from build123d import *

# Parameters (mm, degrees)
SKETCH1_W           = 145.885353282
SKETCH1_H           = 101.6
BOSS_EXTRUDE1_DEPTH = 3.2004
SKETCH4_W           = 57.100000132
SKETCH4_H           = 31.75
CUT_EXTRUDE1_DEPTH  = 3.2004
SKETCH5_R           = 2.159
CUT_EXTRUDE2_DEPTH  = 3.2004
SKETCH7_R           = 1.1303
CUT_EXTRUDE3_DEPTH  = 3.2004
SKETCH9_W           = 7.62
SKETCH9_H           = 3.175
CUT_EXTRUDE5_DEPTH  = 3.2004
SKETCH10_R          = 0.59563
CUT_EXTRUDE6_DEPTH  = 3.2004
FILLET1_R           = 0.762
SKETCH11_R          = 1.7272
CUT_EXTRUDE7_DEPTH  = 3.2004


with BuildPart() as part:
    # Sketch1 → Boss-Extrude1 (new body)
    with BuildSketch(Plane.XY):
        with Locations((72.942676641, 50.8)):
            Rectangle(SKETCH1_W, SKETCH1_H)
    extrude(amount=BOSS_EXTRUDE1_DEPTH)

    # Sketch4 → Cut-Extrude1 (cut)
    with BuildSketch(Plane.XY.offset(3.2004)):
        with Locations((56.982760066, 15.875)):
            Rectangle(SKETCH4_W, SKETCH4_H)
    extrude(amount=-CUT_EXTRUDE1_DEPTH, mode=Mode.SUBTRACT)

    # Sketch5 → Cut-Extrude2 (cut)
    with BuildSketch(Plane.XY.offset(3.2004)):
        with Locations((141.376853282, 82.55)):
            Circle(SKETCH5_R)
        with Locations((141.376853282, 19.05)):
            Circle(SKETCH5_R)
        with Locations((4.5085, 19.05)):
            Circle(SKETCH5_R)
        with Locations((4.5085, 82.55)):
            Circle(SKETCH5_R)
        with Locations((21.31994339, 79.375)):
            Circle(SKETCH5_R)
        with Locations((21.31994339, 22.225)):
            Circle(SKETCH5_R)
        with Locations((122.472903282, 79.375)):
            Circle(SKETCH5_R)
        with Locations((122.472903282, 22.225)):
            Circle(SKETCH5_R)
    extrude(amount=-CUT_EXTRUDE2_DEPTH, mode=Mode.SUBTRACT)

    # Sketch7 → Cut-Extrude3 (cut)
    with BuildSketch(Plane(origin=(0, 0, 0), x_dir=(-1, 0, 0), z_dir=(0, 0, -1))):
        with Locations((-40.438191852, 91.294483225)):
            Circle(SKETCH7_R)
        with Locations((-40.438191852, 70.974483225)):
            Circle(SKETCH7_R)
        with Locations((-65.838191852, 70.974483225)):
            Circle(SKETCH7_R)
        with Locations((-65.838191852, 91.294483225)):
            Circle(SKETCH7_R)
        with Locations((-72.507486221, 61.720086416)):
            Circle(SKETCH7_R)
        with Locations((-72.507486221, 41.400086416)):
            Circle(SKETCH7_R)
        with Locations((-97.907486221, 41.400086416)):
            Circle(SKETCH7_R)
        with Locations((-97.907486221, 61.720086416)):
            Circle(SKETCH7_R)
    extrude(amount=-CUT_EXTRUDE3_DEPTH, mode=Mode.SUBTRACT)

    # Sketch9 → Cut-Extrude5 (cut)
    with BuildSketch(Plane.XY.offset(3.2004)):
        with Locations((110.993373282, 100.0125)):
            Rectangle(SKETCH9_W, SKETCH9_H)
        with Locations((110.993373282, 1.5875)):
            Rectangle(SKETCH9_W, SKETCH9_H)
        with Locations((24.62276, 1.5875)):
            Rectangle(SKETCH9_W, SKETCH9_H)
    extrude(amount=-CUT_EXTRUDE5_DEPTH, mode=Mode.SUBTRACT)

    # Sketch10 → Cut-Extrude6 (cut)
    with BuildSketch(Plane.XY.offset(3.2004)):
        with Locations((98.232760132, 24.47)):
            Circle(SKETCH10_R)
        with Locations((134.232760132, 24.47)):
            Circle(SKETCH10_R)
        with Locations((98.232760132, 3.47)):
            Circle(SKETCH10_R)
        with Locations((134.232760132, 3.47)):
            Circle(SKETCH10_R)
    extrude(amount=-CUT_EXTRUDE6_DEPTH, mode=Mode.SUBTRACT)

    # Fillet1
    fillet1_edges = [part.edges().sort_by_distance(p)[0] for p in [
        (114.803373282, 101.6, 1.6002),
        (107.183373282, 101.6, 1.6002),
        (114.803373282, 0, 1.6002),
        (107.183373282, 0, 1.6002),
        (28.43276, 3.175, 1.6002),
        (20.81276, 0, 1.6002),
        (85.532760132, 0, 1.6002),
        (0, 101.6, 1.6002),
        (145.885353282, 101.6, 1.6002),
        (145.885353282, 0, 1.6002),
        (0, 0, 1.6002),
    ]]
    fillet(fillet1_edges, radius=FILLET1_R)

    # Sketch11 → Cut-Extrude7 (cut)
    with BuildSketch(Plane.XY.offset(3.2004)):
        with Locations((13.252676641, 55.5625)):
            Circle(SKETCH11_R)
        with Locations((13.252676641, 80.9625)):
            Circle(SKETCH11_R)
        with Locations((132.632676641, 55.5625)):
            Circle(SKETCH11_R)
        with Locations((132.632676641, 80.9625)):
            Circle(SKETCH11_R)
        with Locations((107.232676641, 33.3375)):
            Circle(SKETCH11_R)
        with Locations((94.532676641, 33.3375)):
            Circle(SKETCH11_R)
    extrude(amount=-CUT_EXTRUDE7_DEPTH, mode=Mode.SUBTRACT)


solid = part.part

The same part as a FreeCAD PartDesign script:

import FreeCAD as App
import Part
import Sketcher
Q = App.Units.Quantity


def edges_at(feature, points):
    """Names of the edges that pass closest to the given points."""
    edges = feature.Shape.Edges
    near = lambda p: min(range(len(edges)), key=lambda i: edges[i].distToShape(Part.Vertex(*p))[0])
    return sorted({f"Edge{near(p) + 1}" for p in points})

doc = App.newDocument("Part")
body = doc.addObject("PartDesign::Body", "Body")

sketch1 = doc.addObject("Sketcher::SketchObject", "Sketch")
body.addObject(sketch1)
sketch1.AttachmentSupport = (doc.XY_Plane, [""])
sketch1.MapMode = "FlatFace"
sketch1.addGeometry(Part.LineSegment(App.Vector(0, 102, 0), App.Vector(0, 0, 0)), False)
sketch1.addGeometry(Part.LineSegment(App.Vector(0, 0, 0), App.Vector(146, 0, 0)), False)
sketch1.addGeometry(Part.LineSegment(App.Vector(146, 0, 0), App.Vector(146, 102, 0)), False)
sketch1.addGeometry(Part.LineSegment(App.Vector(146, 102, 0), App.Vector(0, 102, 0)), False)
sketch1.addConstraint(Sketcher.Constraint("Coincident", 0, 2, 1, 1))
sketch1.addConstraint(Sketcher.Constraint("Coincident", 1, 2, 2, 1))
sketch1.addConstraint(Sketcher.Constraint("Coincident", 2, 2, 3, 1))
sketch1.addConstraint(Sketcher.Constraint("Coincident", 3, 2, 0, 1))
sketch1.addConstraint(Sketcher.Constraint("Vertical", 0))
sketch1.addConstraint(Sketcher.Constraint("Horizontal", 1))
sketch1.addConstraint(Sketcher.Constraint("Vertical", 2))
sketch1.addConstraint(Sketcher.Constraint("Horizontal", 3))
sketch1.addConstraint(Sketcher.Constraint("Coincident", 0, 2, -1, 1))
sketch1.addConstraint(Sketcher.Constraint("DistanceY", 0, 2, 0, 1, Q("4 in")))
sketch1.addConstraint(Sketcher.Constraint("DistanceX", 1, 1, 1, 2, 145.885353))
pad1 = doc.addObject("PartDesign::Pad", "Pad")
body.addObject(pad1)
pad1.Profile = sketch1
pad1.Length = Q("0.126 in")

sketch2 = doc.addObject("Sketcher::SketchObject", "Sketch001")
body.addObject(sketch2)
sketch2.AttachmentSupport = (doc.XY_Plane, [""])
sketch2.MapMode = "FlatFace"
sketch2.AttachmentOffset = App.Placement(App.Vector(0, 0, 0.126 * 25.4), App.Rotation())
sketch2.addGeometry(Part.LineSegment(App.Vector(28, 32, 0), App.Vector(28, 0, 0)), False)
sketch2.addGeometry(Part.LineSegment(App.Vector(28, 0, 0), App.Vector(86, 0, 0)), False)
sketch2.addGeometry(Part.LineSegment(App.Vector(86, 0, 0), App.Vector(86, 32, 0)), False)
sketch2.addGeometry(Part.LineSegment(App.Vector(86, 32, 0), App.Vector(28, 32, 0)), False)
sketch2.addConstraint(Sketcher.Constraint("Coincident", 0, 2, 1, 1))
sketch2.addConstraint(Sketcher.Constraint("Coincident", 1, 2, 2, 1))
sketch2.addConstraint(Sketcher.Constraint("Coincident", 2, 2, 3, 1))
sketch2.addConstraint(Sketcher.Constraint("Coincident", 3, 2, 0, 1))
sketch2.addConstraint(Sketcher.Constraint("Vertical", 0))
sketch2.addConstraint(Sketcher.Constraint("Horizontal", 1))
sketch2.addConstraint(Sketcher.Constraint("Vertical", 2))
sketch2.addConstraint(Sketcher.Constraint("Horizontal", 3))
sketch2.addConstraint(Sketcher.Constraint("PointOnObject", 0, 2, -1))
sketch2.addConstraint(Sketcher.Constraint("DistanceY", 0, 2, 0, 1, Q("1.25 in")))
sketch2.addConstraint(Sketcher.Constraint("DistanceX", 1, 1, 1, 2, 57.1))
sketch2.addConstraint(Sketcher.Constraint("DistanceX", -1, 1, 0, 2, Q("1.1194 in")))
pocket1 = doc.addObject("PartDesign::Pocket", "Pocket")
body.addObject(pocket1)
pocket1.Profile = sketch2
pocket1.Length = Q("0.126 in")

sketch3 = doc.addObject("Sketcher::SketchObject", "Sketch002")
body.addObject(sketch3)
sketch3.AttachmentSupport = (doc.XY_Plane, [""])
sketch3.MapMode = "FlatFace"
sketch3.AttachmentOffset = App.Placement(App.Vector(0, 0, 0.126 * 25.4), App.Rotation())
sketch3.addGeometry(Part.Circle(App.Vector(141.4, 82.5, 0), App.Vector(0, 0, 1), 2.2), False)
sketch3.addGeometry(Part.Circle(App.Vector(141.4, 19.1, 0), App.Vector(0, 0, 1), 2.2), False)
sketch3.addGeometry(Part.Circle(App.Vector(4.5, 19.1, 0), App.Vector(0, 0, 1), 2.2), False)
sketch3.addGeometry(Part.Circle(App.Vector(4.5, 82.5, 0), App.Vector(0, 0, 1), 2.2), False)
sketch3.addGeometry(Part.Circle(App.Vector(21.3, 79.4, 0), App.Vector(0, 0, 1), 2.2), False)
sketch3.addGeometry(Part.Circle(App.Vector(21.3, 22.2, 0), App.Vector(0, 0, 1), 2.2), False)
sketch3.addGeometry(Part.Circle(App.Vector(122.5, 79.4, 0), App.Vector(0, 0, 1), 2.2), False)
sketch3.addGeometry(Part.Circle(App.Vector(122.5, 22.2, 0), App.Vector(0, 0, 1), 2.2), False)
sketch3.addConstraint(Sketcher.Constraint("Equal", 0, 1))
sketch3.addConstraint(Sketcher.Constraint("Equal", 1, 2))
sketch3.addConstraint(Sketcher.Constraint("Equal", 2, 3))
sketch3.addConstraint(Sketcher.Constraint("Equal", 3, 4))
sketch3.addConstraint(Sketcher.Constraint("Equal", 4, 5))
sketch3.addConstraint(Sketcher.Constraint("Equal", 5, 6))
sketch3.addConstraint(Sketcher.Constraint("Equal", 6, 7))
sketch3.addConstraint(Sketcher.Constraint("Horizontal", 1, 3, 2, 3))
sketch3.addConstraint(Sketcher.Constraint("Horizontal", 0, 3, 3, 3))
sketch3.addConstraint(Sketcher.Constraint("Horizontal", 4, 3, 6, 3))
sketch3.addConstraint(Sketcher.Constraint("Horizontal", 5, 3, 7, 3))
sketch3.addConstraint(Sketcher.Constraint("Vertical", 0, 3, 1, 3))
sketch3.addConstraint(Sketcher.Constraint("Vertical", 2, 3, 3, 3))
sketch3.addConstraint(Sketcher.Constraint("Vertical", 4, 3, 5, 3))
sketch3.addConstraint(Sketcher.Constraint("Vertical", 6, 3, 7, 3))
sketch3.addConstraint(Sketcher.Constraint("Diameter", 0, Q("0.17 in")))
sketch3.addConstraint(Sketcher.Constraint("DistanceY", 1, 3, 0, 3, Q("2.5 in")))
sketch3.addConstraint(Sketcher.Constraint("DistanceY", -1, 1, 0, 3, Q("3.25 in")))
sketch3.addConstraint(Sketcher.Constraint("DistanceY", 5, 3, 4, 3, Q("2.25 in")))
sketch3.addConstraint(Sketcher.Constraint("DistanceY", -1, 1, 4, 3, Q("3.125 in")))
sketch3.addConstraint(Sketcher.Constraint("DistanceX", -1, 1, 2, 3, Q("0.1775 in")))
sketch3.addConstraint(Sketcher.Constraint("DistanceX", 4, 3, 6, 3, Q("3.9824 in")))
sketch3.addConstraint(Sketcher.Constraint("DistanceX", 4, 3, 0, 3, 120.05691))
sketch3.addConstraint(Sketcher.Constraint("DistanceX", -1, 1, 0, 3, 141.376853))
pocket2 = doc.addObject("PartDesign::Pocket", "Pocket001")
body.addObject(pocket2)
pocket2.Profile = sketch3
pocket2.Length = Q("0.126 in")

sketch4 = doc.addObject("Sketcher::SketchObject", "Sketch003")
body.addObject(sketch4)
sketch4.AttachmentSupport = (doc.XY_Plane, [""])
sketch4.MapMode = "FlatFace"
sketch4.addGeometry(Part.Circle(App.Vector(40.4, 91.3, 0), App.Vector(0, 0, 1), 1.1), False)
sketch4.addGeometry(Part.Circle(App.Vector(40.4, 71, 0), App.Vector(0, 0, 1), 1.1), False)
sketch4.addGeometry(Part.Circle(App.Vector(65.8, 71, 0), App.Vector(0, 0, 1), 1.1), False)
sketch4.addGeometry(Part.Circle(App.Vector(65.8, 91.3, 0), App.Vector(0, 0, 1), 1.1), False)
sketch4.addGeometry(Part.Circle(App.Vector(72.5, 61.7, 0), App.Vector(0, 0, 1), 1.1), False)
sketch4.addGeometry(Part.Circle(App.Vector(72.5, 41.4, 0), App.Vector(0, 0, 1), 1.1), False)
sketch4.addGeometry(Part.Circle(App.Vector(97.9, 41.4, 0), App.Vector(0, 0, 1), 1.1), False)
sketch4.addGeometry(Part.Circle(App.Vector(97.9, 61.7, 0), App.Vector(0, 0, 1), 1.1), False)
sketch4.addConstraint(Sketcher.Constraint("Equal", 0, 1))
sketch4.addConstraint(Sketcher.Constraint("Equal", 1, 2))
sketch4.addConstraint(Sketcher.Constraint("Equal", 2, 3))
sketch4.addConstraint(Sketcher.Constraint("Equal", 3, 4))
sketch4.addConstraint(Sketcher.Constraint("Equal", 4, 5))
sketch4.addConstraint(Sketcher.Constraint("Equal", 5, 6))
sketch4.addConstraint(Sketcher.Constraint("Equal", 6, 7))
sketch4.addConstraint(Sketcher.Constraint("Horizontal", 1, 3, 2, 3))
sketch4.addConstraint(Sketcher.Constraint("Horizontal", 0, 3, 3, 3))
sketch4.addConstraint(Sketcher.Constraint("Horizontal", 5, 3, 6, 3))
sketch4.addConstraint(Sketcher.Constraint("Horizontal", 4, 3, 7, 3))
sketch4.addConstraint(Sketcher.Constraint("Vertical", 0, 3, 1, 3))
sketch4.addConstraint(Sketcher.Constraint("Vertical", 2, 3, 3, 3))
sketch4.addConstraint(Sketcher.Constraint("Vertical", 4, 3, 5, 3))
sketch4.addConstraint(Sketcher.Constraint("Vertical", 6, 3, 7, 3))
sketch4.addConstraint(Sketcher.Constraint("Diameter", 0, Q("0.089 in")))
sketch4.addConstraint(Sketcher.Constraint("DistanceX", 1, 3, 2, 3, Q("1 in")))
sketch4.addConstraint(Sketcher.Constraint("DistanceX", 5, 3, 6, 3, Q("1 in")))
sketch4.addConstraint(Sketcher.Constraint("DistanceY", 1, 3, 0, 3, Q("0.8 in")))
sketch4.addConstraint(Sketcher.Constraint("DistanceY", 5, 3, 4, 3, Q("0.8 in")))
sketch4.addConstraint(Sketcher.Constraint("DistanceX", -1, 1, 0, 3, 40.438192))
sketch4.addConstraint(Sketcher.Constraint("DistanceY", -1, 1, 0, 3, 91.294483))
sketch4.addConstraint(Sketcher.Constraint("DistanceX", -1, 1, 4, 3, 72.507486))
sketch4.addConstraint(Sketcher.Constraint("DistanceY", -1, 1, 4, 3, 61.720086))
pocket3 = doc.addObject("PartDesign::Pocket", "Pocket002")
body.addObject(pocket3)
pocket3.Profile = sketch4
pocket3.Length = Q("0.126 in")
pocket3.Reversed = True

sketch5 = doc.addObject("Sketcher::SketchObject", "Sketch004")
body.addObject(sketch5)
sketch5.AttachmentSupport = (doc.XY_Plane, [""])
sketch5.MapMode = "FlatFace"
sketch5.AttachmentOffset = App.Placement(App.Vector(0, 0, 0.126 * 25.4), App.Rotation())
sketch5.addGeometry(Part.LineSegment(App.Vector(107.2, 101.6, 0), App.Vector(107.2, 98.4, 0)), False)
sketch5.addGeometry(Part.LineSegment(App.Vector(107.2, 98.4, 0), App.Vector(114.8, 98.4, 0)), False)
sketch5.addGeometry(Part.LineSegment(App.Vector(114.8, 98.4, 0), App.Vector(114.8, 101.6, 0)), False)
sketch5.addGeometry(Part.LineSegment(App.Vector(114.8, 101.6, 0), App.Vector(107.2, 101.6, 0)), False)
sketch5.addGeometry(Part.LineSegment(App.Vector(107.2, 3.2, 0), App.Vector(107.2, 0, 0)), False)
sketch5.addGeometry(Part.LineSegment(App.Vector(107.2, 0, 0), App.Vector(114.8, 0, 0)), False)
sketch5.addGeometry(Part.LineSegment(App.Vector(114.8, 0, 0), App.Vector(114.8, 3.2, 0)), False)
sketch5.addGeometry(Part.LineSegment(App.Vector(114.8, 3.2, 0), App.Vector(107.2, 3.2, 0)), False)
sketch5.addGeometry(Part.LineSegment(App.Vector(20.8, 3.2, 0), App.Vector(20.8, 0, 0)), False)
sketch5.addGeometry(Part.LineSegment(App.Vector(20.8, 0, 0), App.Vector(28.4, 0, 0)), False)
sketch5.addGeometry(Part.LineSegment(App.Vector(28.4, 0, 0), App.Vector(28.4, 3.2, 0)), False)
sketch5.addGeometry(Part.LineSegment(App.Vector(28.4, 3.2, 0), App.Vector(20.8, 3.2, 0)), False)
sketch5.addConstraint(Sketcher.Constraint("Coincident", 0, 2, 1, 1))
sketch5.addConstraint(Sketcher.Constraint("Coincident", 1, 2, 2, 1))
sketch5.addConstraint(Sketcher.Constraint("Coincident", 2, 2, 3, 1))
sketch5.addConstraint(Sketcher.Constraint("Coincident", 3, 2, 0, 1))
sketch5.addConstraint(Sketcher.Constraint("Coincident", 4, 2, 5, 1))
sketch5.addConstraint(Sketcher.Constraint("Coincident", 5, 2, 6, 1))
sketch5.addConstraint(Sketcher.Constraint("Coincident", 6, 2, 7, 1))
sketch5.addConstraint(Sketcher.Constraint("Coincident", 7, 2, 4, 1))
sketch5.addConstraint(Sketcher.Constraint("Coincident", 8, 2, 9, 1))
sketch5.addConstraint(Sketcher.Constraint("Coincident", 9, 2, 10, 1))
sketch5.addConstraint(Sketcher.Constraint("Coincident", 10, 2, 11, 1))
sketch5.addConstraint(Sketcher.Constraint("Coincident", 11, 2, 8, 1))
sketch5.addConstraint(Sketcher.Constraint("Vertical", 0))
sketch5.addConstraint(Sketcher.Constraint("Horizontal", 1))
sketch5.addConstraint(Sketcher.Constraint("Vertical", 2))
sketch5.addConstraint(Sketcher.Constraint("Horizontal", 3))
sketch5.addConstraint(Sketcher.Constraint("Vertical", 4))
sketch5.addConstraint(Sketcher.Constraint("Horizontal", 5))
sketch5.addConstraint(Sketcher.Constraint("Vertical", 6))
sketch5.addConstraint(Sketcher.Constraint("Horizontal", 7))
sketch5.addConstraint(Sketcher.Constraint("Vertical", 8))
sketch5.addConstraint(Sketcher.Constraint("Horizontal", 9))
sketch5.addConstraint(Sketcher.Constraint("Vertical", 10))
sketch5.addConstraint(Sketcher.Constraint("Horizontal", 11))
sketch5.addConstraint(Sketcher.Constraint("PointOnObject", 4, 2, -1))
sketch5.addConstraint(Sketcher.Constraint("PointOnObject", 8, 2, -1))
sketch5.addConstraint(Sketcher.Constraint("Horizontal", 7, 2, 10, 2))
sketch5.addConstraint(Sketcher.Constraint("Vertical", 3, 2, 4, 2))
sketch5.addConstraint(Sketcher.Constraint("Vertical", 2, 2, 5, 2))
sketch5.addConstraint(Sketcher.Constraint("Equal", 7, 9))
sketch5.addConstraint(Sketcher.Constraint("Equal", 2, 4))
sketch5.addConstraint(Sketcher.Constraint("DistanceX", 1, 1, 1, 2, Q("0.3 in")))
sketch5.addConstraint(Sketcher.Constraint("DistanceY", -1, 1, 2, 2, Q("4 in")))
sketch5.addConstraint(Sketcher.Constraint("DistanceY", 0, 2, 0, 1, Q("0.125 in")))
sketch5.addConstraint(Sketcher.Constraint("DistanceX", -1, 1, 8, 2, Q("0.8194 in")))
sketch5.addConstraint(Sketcher.Constraint("DistanceX", -1, 1, 0, 2, 107.183373))
pocket4 = doc.addObject("PartDesign::Pocket", "Pocket003")
body.addObject(pocket4)
pocket4.Profile = sketch5
pocket4.Length = Q("0.126 in")

sketch6 = doc.addObject("Sketcher::SketchObject", "Sketch005")
body.addObject(sketch6)
sketch6.AttachmentSupport = (doc.XY_Plane, [""])
sketch6.MapMode = "FlatFace"
sketch6.AttachmentOffset = App.Placement(App.Vector(0, 0, 0.126 * 25.4), App.Rotation())
sketch6.addGeometry(Part.Circle(App.Vector(98.2, 24.5, 0), App.Vector(0, 0, 1), 0.6), False)
sketch6.addGeometry(Part.Circle(App.Vector(134.2, 24.5, 0), App.Vector(0, 0, 1), 0.6), False)
sketch6.addGeometry(Part.Circle(App.Vector(98.2, 3.5, 0), App.Vector(0, 0, 1), 0.6), False)
sketch6.addGeometry(Part.Circle(App.Vector(134.2, 3.5, 0), App.Vector(0, 0, 1), 0.6), False)
sketch6.addConstraint(Sketcher.Constraint("Equal", 0, 1))
sketch6.addConstraint(Sketcher.Constraint("Equal", 1, 2))
sketch6.addConstraint(Sketcher.Constraint("Equal", 2, 3))
sketch6.addConstraint(Sketcher.Constraint("Horizontal", 0, 3, 1, 3))
sketch6.addConstraint(Sketcher.Constraint("Horizontal", 2, 3, 3, 3))
sketch6.addConstraint(Sketcher.Constraint("Vertical", 0, 3, 2, 3))
sketch6.addConstraint(Sketcher.Constraint("Vertical", 1, 3, 3, 3))
sketch6.addConstraint(Sketcher.Constraint("Diameter", 0, Q("0.0469 in")))
sketch6.addConstraint(Sketcher.Constraint("DistanceY", -1, 1, 0, 3, 24.47))
sketch6.addConstraint(Sketcher.Constraint("DistanceY", -1, 1, 2, 3, 3.47))
sketch6.addConstraint(Sketcher.Constraint("DistanceX", 0, 3, 1, 3, 36.0))
sketch6.addConstraint(Sketcher.Constraint("DistanceX", -1, 1, 0, 3, 98.23276))
pocket5 = doc.addObject("PartDesign::Pocket", "Pocket004")
body.addObject(pocket5)
pocket5.Profile = sketch6
pocket5.Length = Q("0.126 in")
doc.recompute()

fillet = doc.addObject("PartDesign::Fillet", "Fillet")
body.addObject(fillet)
fillet.Base = (pocket5, edges_at(pocket5, [
    (114.803, 101.6, 1.6),
    (107.183, 101.6, 1.6),
    (114.803, 0, 1.6),
    (107.183, 0, 1.6),
    (28.433, 3.175, 1.6),
    (20.813, 0, 1.6),
    (85.533, 0, 1.6),
    (0, 101.6, 1.6),
    (145.885, 101.6, 1.6),
    (145.885, 0, 1.6),
    (0, 0, 1.6),
]))
fillet.Radius = Q("0.03 in")

sketch7 = doc.addObject("Sketcher::SketchObject", "Sketch006")
body.addObject(sketch7)
sketch7.AttachmentSupport = (doc.XY_Plane, [""])
sketch7.MapMode = "FlatFace"
sketch7.AttachmentOffset = App.Placement(App.Vector(0, 0, 0.126 * 25.4), App.Rotation())
sketch7.addGeometry(Part.Circle(App.Vector(13.3, 55.6, 0), App.Vector(0, 0, 1), 1.7), False)
sketch7.addGeometry(Part.Circle(App.Vector(13.3, 81, 0), App.Vector(0, 0, 1), 1.7), False)
sketch7.addGeometry(Part.Circle(App.Vector(132.6, 55.6, 0), App.Vector(0, 0, 1), 1.7), False)
sketch7.addGeometry(Part.Circle(App.Vector(132.6, 81, 0), App.Vector(0, 0, 1), 1.7), False)
sketch7.addGeometry(Part.Circle(App.Vector(107.2, 33.3, 0), App.Vector(0, 0, 1), 1.7), False)
sketch7.addGeometry(Part.Circle(App.Vector(94.5, 33.3, 0), App.Vector(0, 0, 1), 1.7), False)
sketch7.addConstraint(Sketcher.Constraint("Equal", 0, 1))
sketch7.addConstraint(Sketcher.Constraint("Equal", 1, 2))
sketch7.addConstraint(Sketcher.Constraint("Equal", 2, 3))
sketch7.addConstraint(Sketcher.Constraint("Equal", 3, 4))
sketch7.addConstraint(Sketcher.Constraint("Equal", 4, 5))
sketch7.addConstraint(Sketcher.Constraint("Horizontal", 0, 3, 2, 3))
sketch7.addConstraint(Sketcher.Constraint("Horizontal", 1, 3, 3, 3))
sketch7.addConstraint(Sketcher.Constraint("Horizontal", 4, 3, 5, 3))
sketch7.addConstraint(Sketcher.Constraint("Vertical", 0, 3, 1, 3))
sketch7.addConstraint(Sketcher.Constraint("Vertical", 2, 3, 3, 3))
sketch7.addConstraint(Sketcher.Constraint("Diameter", 0, Q("0.136 in")))
sketch7.addConstraint(Sketcher.Constraint("DistanceY", 0, 3, 1, 3, Q("1 in")))
sketch7.addConstraint(Sketcher.Constraint("DistanceX", 4, 3, 2, 3, Q("1 in")))
sketch7.addConstraint(Sketcher.Constraint("DistanceX", 0, 3, 2, 3, Q("4.7 in")))
sketch7.addConstraint(Sketcher.Constraint("DistanceX", 5, 3, 4, 3, Q("0.5 in")))
sketch7.addConstraint(Sketcher.Constraint("DistanceY", -1, 1, 0, 3, Q("2.1875 in")))
sketch7.addConstraint(Sketcher.Constraint("DistanceY", -1, 1, 4, 3, Q("1.3125 in")))
sketch7.addConstraint(Sketcher.Constraint("DistanceX", -1, 1, 0, 3, 13.252677))
pocket6 = doc.addObject("PartDesign::Pocket", "Pocket005")
body.addObject(pocket6)
pocket6.Profile = sketch7
pocket6.Length = Q("0.126 in")

doc.recompute()
